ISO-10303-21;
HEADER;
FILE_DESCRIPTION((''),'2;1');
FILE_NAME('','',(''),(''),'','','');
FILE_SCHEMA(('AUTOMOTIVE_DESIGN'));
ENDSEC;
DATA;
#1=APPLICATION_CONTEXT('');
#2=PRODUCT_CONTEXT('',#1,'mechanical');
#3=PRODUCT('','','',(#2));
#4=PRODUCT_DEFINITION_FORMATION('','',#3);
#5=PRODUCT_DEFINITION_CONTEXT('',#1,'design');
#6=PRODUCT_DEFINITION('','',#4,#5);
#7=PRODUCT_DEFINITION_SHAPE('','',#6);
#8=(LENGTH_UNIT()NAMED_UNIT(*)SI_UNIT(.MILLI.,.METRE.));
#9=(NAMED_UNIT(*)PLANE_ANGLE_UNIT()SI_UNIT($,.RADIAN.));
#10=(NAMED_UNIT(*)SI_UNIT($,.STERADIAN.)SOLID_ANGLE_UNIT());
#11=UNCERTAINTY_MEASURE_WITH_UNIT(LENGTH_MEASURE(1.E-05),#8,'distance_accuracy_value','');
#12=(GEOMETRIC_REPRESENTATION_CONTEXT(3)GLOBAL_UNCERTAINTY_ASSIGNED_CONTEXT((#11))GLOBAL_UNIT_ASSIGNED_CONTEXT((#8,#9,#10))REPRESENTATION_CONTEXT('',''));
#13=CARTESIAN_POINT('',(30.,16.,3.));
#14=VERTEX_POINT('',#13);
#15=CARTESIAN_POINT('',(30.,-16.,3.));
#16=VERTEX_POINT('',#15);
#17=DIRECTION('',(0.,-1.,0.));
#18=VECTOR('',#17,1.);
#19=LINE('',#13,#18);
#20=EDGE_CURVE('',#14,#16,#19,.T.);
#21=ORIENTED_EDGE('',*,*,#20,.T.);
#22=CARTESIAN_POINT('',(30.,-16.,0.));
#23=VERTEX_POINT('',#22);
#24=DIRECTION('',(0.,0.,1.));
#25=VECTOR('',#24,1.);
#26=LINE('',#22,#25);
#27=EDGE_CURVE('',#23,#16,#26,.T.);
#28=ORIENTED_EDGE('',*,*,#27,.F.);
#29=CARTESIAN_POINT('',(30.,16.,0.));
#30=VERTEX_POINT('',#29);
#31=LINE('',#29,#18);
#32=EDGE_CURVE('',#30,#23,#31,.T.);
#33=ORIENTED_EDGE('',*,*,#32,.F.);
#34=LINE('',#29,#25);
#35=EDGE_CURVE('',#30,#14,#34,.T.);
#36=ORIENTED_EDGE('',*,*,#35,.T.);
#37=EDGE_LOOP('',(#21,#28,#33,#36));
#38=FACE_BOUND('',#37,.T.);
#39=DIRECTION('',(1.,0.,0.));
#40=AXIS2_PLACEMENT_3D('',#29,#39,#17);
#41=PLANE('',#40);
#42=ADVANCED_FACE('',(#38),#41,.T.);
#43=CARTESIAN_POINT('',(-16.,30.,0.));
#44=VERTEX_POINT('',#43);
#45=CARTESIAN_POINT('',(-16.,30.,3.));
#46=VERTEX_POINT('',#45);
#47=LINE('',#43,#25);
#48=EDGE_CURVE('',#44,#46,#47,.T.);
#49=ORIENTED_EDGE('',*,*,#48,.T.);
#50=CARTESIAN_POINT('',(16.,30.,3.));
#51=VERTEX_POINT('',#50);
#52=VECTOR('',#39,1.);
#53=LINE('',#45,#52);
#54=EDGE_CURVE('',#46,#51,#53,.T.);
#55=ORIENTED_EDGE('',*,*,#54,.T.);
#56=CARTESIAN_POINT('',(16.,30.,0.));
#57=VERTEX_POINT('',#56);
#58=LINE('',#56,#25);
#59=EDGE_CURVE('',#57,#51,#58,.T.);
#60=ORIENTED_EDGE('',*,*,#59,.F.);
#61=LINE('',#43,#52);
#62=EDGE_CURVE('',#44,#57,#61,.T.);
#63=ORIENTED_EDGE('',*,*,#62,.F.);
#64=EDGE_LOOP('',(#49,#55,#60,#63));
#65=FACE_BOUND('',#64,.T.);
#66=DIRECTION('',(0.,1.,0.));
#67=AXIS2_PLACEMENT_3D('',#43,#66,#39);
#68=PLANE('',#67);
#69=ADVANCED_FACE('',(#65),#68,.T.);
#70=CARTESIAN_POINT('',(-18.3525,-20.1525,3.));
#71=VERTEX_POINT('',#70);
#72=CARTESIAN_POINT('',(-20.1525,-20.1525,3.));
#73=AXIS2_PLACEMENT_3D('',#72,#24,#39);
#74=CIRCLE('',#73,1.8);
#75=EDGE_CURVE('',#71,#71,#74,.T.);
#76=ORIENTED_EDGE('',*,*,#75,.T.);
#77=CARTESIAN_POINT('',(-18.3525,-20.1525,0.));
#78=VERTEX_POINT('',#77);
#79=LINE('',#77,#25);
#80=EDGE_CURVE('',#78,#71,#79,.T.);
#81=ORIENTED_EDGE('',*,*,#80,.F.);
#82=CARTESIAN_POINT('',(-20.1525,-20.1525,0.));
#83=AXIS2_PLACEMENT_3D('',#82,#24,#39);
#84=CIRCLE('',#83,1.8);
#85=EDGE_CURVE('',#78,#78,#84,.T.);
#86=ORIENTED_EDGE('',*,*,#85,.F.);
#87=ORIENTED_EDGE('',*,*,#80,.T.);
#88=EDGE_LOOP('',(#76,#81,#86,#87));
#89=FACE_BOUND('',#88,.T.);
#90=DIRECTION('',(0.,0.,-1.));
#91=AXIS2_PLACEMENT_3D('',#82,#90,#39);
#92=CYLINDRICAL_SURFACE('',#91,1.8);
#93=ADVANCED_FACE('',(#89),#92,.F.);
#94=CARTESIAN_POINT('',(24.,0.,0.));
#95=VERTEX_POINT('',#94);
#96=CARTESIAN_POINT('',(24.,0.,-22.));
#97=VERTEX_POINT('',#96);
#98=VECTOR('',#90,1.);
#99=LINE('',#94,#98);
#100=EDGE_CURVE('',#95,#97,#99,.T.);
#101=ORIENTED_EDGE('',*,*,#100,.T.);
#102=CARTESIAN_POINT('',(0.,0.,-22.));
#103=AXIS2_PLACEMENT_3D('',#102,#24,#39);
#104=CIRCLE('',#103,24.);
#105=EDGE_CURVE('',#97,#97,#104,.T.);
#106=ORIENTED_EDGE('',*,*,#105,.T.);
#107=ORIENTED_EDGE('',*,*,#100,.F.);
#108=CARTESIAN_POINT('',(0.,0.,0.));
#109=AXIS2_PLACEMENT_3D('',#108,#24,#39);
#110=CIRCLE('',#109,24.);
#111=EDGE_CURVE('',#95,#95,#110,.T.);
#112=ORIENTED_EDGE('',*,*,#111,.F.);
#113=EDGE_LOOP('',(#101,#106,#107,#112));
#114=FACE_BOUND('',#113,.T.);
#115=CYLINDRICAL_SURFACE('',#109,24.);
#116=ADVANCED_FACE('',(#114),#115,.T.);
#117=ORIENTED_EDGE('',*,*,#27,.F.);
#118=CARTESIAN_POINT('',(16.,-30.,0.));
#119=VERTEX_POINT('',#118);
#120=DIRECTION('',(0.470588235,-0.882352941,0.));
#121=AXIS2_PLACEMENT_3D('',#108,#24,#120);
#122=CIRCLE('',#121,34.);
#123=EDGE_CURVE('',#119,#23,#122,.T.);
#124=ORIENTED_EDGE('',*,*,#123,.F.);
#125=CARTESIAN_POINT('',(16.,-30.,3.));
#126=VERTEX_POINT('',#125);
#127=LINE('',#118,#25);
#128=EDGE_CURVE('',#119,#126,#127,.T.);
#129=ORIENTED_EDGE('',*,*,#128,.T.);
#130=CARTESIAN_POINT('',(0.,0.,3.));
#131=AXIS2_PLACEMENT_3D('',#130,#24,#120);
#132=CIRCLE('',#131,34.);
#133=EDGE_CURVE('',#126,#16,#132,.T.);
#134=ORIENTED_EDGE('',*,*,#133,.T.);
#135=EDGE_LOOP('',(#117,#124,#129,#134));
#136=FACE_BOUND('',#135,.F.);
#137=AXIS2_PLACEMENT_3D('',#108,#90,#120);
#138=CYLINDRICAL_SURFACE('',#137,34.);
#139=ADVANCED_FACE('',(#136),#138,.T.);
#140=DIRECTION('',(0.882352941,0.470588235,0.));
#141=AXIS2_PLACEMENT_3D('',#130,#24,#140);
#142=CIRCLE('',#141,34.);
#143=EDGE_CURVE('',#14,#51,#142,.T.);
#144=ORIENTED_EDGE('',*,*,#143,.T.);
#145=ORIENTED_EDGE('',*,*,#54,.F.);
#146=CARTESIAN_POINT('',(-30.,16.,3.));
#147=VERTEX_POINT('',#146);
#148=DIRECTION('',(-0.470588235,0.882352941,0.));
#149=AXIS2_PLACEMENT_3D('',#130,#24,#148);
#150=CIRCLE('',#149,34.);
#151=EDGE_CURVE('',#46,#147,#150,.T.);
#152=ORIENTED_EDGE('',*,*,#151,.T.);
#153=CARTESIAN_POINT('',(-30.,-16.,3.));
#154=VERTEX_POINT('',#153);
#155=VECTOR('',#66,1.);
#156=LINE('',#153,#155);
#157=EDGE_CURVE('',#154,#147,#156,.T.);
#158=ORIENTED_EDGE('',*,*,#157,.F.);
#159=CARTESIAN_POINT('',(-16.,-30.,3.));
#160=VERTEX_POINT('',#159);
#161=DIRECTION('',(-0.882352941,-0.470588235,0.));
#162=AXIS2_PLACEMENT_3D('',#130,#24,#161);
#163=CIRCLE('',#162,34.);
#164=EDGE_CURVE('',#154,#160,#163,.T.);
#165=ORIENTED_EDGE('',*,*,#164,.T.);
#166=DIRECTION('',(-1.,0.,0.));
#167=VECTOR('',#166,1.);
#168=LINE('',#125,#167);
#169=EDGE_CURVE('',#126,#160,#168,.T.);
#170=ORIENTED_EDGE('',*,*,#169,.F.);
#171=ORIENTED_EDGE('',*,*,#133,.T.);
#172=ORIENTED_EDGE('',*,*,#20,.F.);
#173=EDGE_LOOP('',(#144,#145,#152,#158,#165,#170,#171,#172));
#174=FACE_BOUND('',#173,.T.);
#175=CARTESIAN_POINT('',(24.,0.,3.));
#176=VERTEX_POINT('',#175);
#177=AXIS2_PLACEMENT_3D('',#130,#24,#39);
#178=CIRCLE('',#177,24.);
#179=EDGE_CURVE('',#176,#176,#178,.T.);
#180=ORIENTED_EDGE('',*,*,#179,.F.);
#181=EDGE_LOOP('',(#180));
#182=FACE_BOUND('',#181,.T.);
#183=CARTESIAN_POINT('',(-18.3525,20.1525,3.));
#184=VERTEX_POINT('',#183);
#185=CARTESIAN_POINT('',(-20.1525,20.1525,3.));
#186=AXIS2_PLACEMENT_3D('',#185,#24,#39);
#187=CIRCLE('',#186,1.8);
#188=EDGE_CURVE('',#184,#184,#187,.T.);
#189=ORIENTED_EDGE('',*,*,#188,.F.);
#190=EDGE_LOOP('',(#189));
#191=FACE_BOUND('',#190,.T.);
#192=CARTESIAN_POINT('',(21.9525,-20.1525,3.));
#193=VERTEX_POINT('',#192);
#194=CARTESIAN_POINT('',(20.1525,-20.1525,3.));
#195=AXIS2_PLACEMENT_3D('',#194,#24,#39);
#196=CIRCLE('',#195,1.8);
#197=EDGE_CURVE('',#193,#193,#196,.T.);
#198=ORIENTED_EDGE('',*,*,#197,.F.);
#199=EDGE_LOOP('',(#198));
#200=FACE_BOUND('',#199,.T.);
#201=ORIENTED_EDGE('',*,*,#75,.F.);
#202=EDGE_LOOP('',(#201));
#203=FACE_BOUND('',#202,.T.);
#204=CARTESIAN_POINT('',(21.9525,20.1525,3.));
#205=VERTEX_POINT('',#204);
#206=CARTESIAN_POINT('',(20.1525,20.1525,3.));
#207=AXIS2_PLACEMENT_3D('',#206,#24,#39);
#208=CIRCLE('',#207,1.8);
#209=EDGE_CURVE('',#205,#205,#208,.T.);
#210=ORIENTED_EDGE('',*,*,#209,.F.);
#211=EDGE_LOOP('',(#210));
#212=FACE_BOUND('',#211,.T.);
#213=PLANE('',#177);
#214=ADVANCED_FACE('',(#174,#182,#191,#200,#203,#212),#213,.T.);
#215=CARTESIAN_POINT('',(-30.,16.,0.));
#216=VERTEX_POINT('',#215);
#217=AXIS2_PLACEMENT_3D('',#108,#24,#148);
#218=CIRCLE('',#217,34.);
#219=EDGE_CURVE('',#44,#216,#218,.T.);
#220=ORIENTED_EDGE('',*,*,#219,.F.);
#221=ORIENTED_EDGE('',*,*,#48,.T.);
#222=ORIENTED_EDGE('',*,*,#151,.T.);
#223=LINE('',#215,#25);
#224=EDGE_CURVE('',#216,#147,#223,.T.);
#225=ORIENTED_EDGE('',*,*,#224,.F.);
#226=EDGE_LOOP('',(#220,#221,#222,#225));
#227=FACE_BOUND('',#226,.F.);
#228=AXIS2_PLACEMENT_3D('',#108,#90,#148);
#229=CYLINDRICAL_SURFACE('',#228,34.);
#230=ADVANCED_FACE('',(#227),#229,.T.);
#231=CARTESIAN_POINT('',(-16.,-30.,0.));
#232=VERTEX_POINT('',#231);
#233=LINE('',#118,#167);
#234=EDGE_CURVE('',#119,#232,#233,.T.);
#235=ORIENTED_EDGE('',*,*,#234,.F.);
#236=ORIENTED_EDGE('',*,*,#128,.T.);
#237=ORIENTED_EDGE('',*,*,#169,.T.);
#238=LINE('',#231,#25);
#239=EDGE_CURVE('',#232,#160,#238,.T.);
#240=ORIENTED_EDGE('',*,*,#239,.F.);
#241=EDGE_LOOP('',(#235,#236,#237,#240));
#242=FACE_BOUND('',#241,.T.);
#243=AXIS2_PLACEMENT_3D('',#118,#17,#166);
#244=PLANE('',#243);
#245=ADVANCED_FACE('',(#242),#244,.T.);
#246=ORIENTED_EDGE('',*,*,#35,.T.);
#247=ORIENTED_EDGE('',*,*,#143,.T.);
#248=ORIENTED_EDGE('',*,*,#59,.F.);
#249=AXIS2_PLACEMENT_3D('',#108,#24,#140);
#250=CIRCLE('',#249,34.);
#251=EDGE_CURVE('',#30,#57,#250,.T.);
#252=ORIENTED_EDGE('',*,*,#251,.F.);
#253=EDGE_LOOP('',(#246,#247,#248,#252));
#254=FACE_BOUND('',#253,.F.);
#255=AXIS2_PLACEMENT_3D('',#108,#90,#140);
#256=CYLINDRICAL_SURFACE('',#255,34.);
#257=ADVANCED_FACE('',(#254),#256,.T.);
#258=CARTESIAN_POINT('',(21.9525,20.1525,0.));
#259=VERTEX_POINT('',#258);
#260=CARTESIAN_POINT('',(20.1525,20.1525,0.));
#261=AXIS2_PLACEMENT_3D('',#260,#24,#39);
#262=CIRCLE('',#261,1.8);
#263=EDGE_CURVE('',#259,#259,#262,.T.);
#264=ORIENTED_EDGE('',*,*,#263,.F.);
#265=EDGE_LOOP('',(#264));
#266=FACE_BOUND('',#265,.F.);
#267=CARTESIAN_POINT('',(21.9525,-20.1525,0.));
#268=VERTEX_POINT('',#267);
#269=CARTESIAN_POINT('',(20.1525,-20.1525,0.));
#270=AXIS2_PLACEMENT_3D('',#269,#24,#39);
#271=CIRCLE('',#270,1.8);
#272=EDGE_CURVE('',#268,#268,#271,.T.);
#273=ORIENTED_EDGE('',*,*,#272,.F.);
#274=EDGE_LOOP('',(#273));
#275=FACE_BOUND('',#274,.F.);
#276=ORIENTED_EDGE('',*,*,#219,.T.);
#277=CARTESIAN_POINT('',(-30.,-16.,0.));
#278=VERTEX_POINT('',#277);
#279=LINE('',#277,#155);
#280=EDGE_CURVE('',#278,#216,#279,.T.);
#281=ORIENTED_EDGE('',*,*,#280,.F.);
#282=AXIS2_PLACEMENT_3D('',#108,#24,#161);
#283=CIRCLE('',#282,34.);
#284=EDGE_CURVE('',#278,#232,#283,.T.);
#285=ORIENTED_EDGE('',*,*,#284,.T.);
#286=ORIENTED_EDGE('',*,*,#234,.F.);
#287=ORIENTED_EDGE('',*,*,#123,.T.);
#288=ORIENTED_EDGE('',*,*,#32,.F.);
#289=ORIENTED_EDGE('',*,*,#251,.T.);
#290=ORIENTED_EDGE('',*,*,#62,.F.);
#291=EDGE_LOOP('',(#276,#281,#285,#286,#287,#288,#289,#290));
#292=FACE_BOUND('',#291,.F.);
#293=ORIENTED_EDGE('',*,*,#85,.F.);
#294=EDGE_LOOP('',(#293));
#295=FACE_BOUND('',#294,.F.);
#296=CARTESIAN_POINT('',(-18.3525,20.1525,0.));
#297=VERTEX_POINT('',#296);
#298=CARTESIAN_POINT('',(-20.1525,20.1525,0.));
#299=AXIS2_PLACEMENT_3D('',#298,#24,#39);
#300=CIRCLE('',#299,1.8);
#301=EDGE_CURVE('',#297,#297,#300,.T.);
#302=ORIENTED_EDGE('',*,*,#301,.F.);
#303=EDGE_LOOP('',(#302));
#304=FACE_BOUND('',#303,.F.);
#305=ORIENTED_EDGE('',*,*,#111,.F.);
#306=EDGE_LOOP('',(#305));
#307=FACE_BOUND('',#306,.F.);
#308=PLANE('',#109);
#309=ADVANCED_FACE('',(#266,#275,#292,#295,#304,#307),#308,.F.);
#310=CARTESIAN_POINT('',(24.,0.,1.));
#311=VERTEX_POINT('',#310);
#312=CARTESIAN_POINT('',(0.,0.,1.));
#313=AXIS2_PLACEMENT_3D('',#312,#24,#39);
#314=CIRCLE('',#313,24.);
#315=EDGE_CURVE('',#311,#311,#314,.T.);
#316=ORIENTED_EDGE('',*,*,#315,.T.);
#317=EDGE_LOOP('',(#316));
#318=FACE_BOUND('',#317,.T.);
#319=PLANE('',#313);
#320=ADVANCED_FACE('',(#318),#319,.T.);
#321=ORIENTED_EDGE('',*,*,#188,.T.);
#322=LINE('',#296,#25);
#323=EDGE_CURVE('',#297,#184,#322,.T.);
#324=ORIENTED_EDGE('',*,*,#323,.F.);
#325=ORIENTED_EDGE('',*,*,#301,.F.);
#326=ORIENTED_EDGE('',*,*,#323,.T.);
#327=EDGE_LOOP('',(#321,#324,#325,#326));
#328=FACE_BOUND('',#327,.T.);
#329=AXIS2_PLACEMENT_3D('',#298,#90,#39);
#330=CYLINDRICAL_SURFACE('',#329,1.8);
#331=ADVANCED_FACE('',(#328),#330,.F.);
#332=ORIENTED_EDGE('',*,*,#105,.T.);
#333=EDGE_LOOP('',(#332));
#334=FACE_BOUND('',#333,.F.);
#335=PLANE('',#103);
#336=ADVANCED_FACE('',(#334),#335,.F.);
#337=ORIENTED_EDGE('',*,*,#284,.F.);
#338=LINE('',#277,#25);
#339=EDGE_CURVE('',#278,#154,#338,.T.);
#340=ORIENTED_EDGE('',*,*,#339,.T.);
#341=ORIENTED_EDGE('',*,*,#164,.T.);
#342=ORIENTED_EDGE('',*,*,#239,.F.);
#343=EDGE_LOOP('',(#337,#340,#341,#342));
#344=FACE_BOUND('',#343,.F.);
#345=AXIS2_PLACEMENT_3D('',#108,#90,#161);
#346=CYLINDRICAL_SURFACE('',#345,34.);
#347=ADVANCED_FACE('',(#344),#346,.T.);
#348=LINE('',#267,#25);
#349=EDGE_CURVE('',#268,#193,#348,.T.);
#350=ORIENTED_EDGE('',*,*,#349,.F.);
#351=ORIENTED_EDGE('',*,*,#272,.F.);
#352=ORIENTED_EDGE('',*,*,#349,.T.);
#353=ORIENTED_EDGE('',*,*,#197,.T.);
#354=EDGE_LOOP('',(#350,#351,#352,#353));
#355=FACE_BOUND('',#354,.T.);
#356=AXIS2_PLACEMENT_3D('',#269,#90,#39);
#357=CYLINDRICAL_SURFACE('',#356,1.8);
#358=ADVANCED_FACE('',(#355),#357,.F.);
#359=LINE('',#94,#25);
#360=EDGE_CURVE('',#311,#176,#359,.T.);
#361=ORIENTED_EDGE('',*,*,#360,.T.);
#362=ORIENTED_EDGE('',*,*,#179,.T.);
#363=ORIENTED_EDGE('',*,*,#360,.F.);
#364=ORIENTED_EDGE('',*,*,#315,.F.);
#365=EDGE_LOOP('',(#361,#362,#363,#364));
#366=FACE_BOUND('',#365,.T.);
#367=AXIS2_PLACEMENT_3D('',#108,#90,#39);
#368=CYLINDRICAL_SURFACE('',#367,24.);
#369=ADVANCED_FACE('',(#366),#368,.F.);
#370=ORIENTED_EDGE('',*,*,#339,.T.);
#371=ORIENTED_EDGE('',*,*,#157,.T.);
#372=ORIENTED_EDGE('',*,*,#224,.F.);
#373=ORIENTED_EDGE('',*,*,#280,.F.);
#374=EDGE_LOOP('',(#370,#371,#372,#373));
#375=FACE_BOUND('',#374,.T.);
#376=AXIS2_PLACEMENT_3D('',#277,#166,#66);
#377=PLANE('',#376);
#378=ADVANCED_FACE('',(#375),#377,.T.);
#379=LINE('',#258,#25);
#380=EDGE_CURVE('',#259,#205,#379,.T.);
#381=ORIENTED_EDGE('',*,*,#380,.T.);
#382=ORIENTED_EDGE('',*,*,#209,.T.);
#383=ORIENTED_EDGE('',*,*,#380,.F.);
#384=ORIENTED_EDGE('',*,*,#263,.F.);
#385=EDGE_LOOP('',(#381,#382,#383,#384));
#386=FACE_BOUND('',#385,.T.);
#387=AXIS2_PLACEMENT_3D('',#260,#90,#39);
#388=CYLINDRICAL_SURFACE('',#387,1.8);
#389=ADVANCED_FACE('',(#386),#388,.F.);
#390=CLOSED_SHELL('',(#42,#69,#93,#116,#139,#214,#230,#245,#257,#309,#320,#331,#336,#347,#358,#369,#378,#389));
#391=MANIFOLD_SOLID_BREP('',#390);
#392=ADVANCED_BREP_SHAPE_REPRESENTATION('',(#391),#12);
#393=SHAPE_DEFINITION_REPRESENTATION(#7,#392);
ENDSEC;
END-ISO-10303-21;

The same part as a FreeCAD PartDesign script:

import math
import FreeCAD as App
import Part
import Sketcher
from FreeCAD import Vector
Q = App.Units.Quantity

doc = App.newDocument("Part")
body = doc.addObject("PartDesign::Body", "Body")

sketch1 = doc.addObject("Sketcher::SketchObject", "Sketch")
body.addObject(sketch1)
sketch1.AttachmentSupport = (doc.XY_Plane, [""])
sketch1.MapMode = "FlatFace"
sketch1.addGeometry([
    Part.LineSegment(Vector(30, -16, 0), Vector(30, 16, 0)),
    Part.ArcOfCircle(Part.Circle(Vector(0, 0, 0), Vector(0, 0, 1), 34), math.radians(28), math.radians(62)),
    Part.LineSegment(Vector(16, 30, 0), Vector(-16, 30, 0)),
    Part.ArcOfCircle(Part.Circle(Vector(0, 0, 0), Vector(0, 0, 1), 34), math.radians(118), math.radians(152)),
    Part.LineSegment(Vector(-30, 16, 0), Vector(-30, -16, 0)),
    Part.ArcOfCircle(Part.Circle(Vector(0, 0, 0), Vector(0, 0, 1), 34), math.radians(-152), math.radians(-118)),
    Part.LineSegment(Vector(-16, -30, 0), Vector(16, -30, 0)),
    Part.ArcOfCircle(Part.Circle(Vector(0, 0, 0), Vector(0, 0, 1), 34), math.radians(-62), math.radians(-28)),
    Part.Circle(Vector(-20.2, -20.2, 0), Vector(0, 0, 1), 1.8),
    Part.Circle(Vector(20.2, -20.2, 0), Vector(0, 0, 1), 1.8),
    Part.Circle(Vector(-20.2, 20.2, 0), Vector(0, 0, 1), 1.8),
    Part.Circle(Vector(0, 0, 0), Vector(0, 0, 1), 24),
    Part.Circle(Vector(20.2, 20.2, 0), Vector(0, 0, 1), 1.8),
], False)
sketch1.addConstraint([
    Sketcher.Constraint("Coincident", 0, 2, 1, 1),
    Sketcher.Constraint("Coincident", 1, 2, 2, 1),
    Sketcher.Constraint("Coincident", 2, 2, 3, 1),
    Sketcher.Constraint("Coincident", 3, 2, 4, 1),
    Sketcher.Constraint("Coincident", 4, 2, 5, 1),
    Sketcher.Constraint("Coincident", 5, 2, 6, 1),
    Sketcher.Constraint("Coincident", 6, 2, 7, 1),
    Sketcher.Constraint("Coincident", 7, 2, 0, 1),
    Sketcher.Constraint("Vertical", 0),
    Sketcher.Constraint("Horizontal", 2),
    Sketcher.Constraint("Vertical", 4),
    Sketcher.Constraint("Horizontal", 6),
    Sketcher.Constraint("Coincident", 1, 3, -1, 1),
    Sketcher.Constraint("Coincident", 3, 3, -1, 1),
    Sketcher.Constraint("Coincident", 5, 3, -1, 1),
    Sketcher.Constraint("Coincident", 7, 3, -1, 1),
    Sketcher.Constraint("Coincident", 11, 3, -1, 1),
    Sketcher.Constraint("Equal", 1, 3),
    Sketcher.Constraint("Equal", 3, 5),
    Sketcher.Constraint("Equal", 5, 7),
    Sketcher.Constraint("Equal", 8, 9),
    Sketcher.Constraint("Equal", 9, 10),
    Sketcher.Constraint("Equal", 10, 12),
    Sketcher.Constraint("Symmetric", 9, 3, 10, 3, -1, 1),
    Sketcher.Constraint("Symmetric", 8, 3, 12, 3, -1, 1),
    Sketcher.Constraint("Symmetric", 8, 3, 9, 3, -2),
    Sketcher.Constraint("Horizontal", 0, 2, 3, 2),
    Sketcher.Constraint("Vertical", 2, 2, 5, 2),
    Sketcher.Constraint("Equal", 6, 0),
    Sketcher.Constraint("Diameter", 11, Q("48 mm")),
    Sketcher.Constraint("Radius", 1, Q("34 mm")),
    Sketcher.Constraint("Diameter", 8, Q("3.6 mm")),
    Sketcher.Constraint("DistanceX", 2, 2, 2, 1, Q("32 mm")),
    Sketcher.Constraint("DistanceX", 8, 3, 9, 3, Q("40.305 mm")),
    Sketcher.Constraint("DistanceY", 8, 3, 10, 3, Q("40.305 mm")),
])
pad1 = doc.addObject("PartDesign::Pad", "Pad")
body.addObject(pad1)
pad1.Profile = sketch1
pad1.Length = 3

sketch2 = doc.addObject("Sketcher::SketchObject", "Sketch001")
body.addObject(sketch2)
sketch2.AttachmentSupport = (doc.XY_Plane, [""])
sketch2.MapMode = "FlatFace"
sketch2.addGeometry(Part.Circle(Vector(0, 0, 0), Vector(0, 0, 1), 24), False)
sketch2.addConstraint([
    Sketcher.Constraint("Coincident", 0, 3, -1, 1),
    Sketcher.Constraint("Diameter", 0, Q("48 mm")),
])
pad2 = doc.addObject("PartDesign::Pad", "Pad001")
body.addObject(pad2)
pad2.Profile = sketch2
pad2.Length = 1

sketch3 = doc.addObject("Sketcher::SketchObject", "Sketch002")
body.addObject(sketch3)
sketch3.AttachmentSupport = (doc.XY_Plane, [""])
sketch3.MapMode = "FlatFace"
sketch3.addGeometry(Part.Circle(Vector(0, 0, 0), Vector(0, 0, 1), 24), False)
sketch3.addConstraint([
    Sketcher.Constraint("Coincident", 0, 3, -1, 1),
    Sketcher.Constraint("Diameter", 0, Q("48 mm")),
])
pad3 = doc.addObject("PartDesign::Pad", "Pad002")
body.addObject(pad3)
pad3.Profile = sketch3
pad3.Length = 22
pad3.Reversed = True

doc.recompute()
